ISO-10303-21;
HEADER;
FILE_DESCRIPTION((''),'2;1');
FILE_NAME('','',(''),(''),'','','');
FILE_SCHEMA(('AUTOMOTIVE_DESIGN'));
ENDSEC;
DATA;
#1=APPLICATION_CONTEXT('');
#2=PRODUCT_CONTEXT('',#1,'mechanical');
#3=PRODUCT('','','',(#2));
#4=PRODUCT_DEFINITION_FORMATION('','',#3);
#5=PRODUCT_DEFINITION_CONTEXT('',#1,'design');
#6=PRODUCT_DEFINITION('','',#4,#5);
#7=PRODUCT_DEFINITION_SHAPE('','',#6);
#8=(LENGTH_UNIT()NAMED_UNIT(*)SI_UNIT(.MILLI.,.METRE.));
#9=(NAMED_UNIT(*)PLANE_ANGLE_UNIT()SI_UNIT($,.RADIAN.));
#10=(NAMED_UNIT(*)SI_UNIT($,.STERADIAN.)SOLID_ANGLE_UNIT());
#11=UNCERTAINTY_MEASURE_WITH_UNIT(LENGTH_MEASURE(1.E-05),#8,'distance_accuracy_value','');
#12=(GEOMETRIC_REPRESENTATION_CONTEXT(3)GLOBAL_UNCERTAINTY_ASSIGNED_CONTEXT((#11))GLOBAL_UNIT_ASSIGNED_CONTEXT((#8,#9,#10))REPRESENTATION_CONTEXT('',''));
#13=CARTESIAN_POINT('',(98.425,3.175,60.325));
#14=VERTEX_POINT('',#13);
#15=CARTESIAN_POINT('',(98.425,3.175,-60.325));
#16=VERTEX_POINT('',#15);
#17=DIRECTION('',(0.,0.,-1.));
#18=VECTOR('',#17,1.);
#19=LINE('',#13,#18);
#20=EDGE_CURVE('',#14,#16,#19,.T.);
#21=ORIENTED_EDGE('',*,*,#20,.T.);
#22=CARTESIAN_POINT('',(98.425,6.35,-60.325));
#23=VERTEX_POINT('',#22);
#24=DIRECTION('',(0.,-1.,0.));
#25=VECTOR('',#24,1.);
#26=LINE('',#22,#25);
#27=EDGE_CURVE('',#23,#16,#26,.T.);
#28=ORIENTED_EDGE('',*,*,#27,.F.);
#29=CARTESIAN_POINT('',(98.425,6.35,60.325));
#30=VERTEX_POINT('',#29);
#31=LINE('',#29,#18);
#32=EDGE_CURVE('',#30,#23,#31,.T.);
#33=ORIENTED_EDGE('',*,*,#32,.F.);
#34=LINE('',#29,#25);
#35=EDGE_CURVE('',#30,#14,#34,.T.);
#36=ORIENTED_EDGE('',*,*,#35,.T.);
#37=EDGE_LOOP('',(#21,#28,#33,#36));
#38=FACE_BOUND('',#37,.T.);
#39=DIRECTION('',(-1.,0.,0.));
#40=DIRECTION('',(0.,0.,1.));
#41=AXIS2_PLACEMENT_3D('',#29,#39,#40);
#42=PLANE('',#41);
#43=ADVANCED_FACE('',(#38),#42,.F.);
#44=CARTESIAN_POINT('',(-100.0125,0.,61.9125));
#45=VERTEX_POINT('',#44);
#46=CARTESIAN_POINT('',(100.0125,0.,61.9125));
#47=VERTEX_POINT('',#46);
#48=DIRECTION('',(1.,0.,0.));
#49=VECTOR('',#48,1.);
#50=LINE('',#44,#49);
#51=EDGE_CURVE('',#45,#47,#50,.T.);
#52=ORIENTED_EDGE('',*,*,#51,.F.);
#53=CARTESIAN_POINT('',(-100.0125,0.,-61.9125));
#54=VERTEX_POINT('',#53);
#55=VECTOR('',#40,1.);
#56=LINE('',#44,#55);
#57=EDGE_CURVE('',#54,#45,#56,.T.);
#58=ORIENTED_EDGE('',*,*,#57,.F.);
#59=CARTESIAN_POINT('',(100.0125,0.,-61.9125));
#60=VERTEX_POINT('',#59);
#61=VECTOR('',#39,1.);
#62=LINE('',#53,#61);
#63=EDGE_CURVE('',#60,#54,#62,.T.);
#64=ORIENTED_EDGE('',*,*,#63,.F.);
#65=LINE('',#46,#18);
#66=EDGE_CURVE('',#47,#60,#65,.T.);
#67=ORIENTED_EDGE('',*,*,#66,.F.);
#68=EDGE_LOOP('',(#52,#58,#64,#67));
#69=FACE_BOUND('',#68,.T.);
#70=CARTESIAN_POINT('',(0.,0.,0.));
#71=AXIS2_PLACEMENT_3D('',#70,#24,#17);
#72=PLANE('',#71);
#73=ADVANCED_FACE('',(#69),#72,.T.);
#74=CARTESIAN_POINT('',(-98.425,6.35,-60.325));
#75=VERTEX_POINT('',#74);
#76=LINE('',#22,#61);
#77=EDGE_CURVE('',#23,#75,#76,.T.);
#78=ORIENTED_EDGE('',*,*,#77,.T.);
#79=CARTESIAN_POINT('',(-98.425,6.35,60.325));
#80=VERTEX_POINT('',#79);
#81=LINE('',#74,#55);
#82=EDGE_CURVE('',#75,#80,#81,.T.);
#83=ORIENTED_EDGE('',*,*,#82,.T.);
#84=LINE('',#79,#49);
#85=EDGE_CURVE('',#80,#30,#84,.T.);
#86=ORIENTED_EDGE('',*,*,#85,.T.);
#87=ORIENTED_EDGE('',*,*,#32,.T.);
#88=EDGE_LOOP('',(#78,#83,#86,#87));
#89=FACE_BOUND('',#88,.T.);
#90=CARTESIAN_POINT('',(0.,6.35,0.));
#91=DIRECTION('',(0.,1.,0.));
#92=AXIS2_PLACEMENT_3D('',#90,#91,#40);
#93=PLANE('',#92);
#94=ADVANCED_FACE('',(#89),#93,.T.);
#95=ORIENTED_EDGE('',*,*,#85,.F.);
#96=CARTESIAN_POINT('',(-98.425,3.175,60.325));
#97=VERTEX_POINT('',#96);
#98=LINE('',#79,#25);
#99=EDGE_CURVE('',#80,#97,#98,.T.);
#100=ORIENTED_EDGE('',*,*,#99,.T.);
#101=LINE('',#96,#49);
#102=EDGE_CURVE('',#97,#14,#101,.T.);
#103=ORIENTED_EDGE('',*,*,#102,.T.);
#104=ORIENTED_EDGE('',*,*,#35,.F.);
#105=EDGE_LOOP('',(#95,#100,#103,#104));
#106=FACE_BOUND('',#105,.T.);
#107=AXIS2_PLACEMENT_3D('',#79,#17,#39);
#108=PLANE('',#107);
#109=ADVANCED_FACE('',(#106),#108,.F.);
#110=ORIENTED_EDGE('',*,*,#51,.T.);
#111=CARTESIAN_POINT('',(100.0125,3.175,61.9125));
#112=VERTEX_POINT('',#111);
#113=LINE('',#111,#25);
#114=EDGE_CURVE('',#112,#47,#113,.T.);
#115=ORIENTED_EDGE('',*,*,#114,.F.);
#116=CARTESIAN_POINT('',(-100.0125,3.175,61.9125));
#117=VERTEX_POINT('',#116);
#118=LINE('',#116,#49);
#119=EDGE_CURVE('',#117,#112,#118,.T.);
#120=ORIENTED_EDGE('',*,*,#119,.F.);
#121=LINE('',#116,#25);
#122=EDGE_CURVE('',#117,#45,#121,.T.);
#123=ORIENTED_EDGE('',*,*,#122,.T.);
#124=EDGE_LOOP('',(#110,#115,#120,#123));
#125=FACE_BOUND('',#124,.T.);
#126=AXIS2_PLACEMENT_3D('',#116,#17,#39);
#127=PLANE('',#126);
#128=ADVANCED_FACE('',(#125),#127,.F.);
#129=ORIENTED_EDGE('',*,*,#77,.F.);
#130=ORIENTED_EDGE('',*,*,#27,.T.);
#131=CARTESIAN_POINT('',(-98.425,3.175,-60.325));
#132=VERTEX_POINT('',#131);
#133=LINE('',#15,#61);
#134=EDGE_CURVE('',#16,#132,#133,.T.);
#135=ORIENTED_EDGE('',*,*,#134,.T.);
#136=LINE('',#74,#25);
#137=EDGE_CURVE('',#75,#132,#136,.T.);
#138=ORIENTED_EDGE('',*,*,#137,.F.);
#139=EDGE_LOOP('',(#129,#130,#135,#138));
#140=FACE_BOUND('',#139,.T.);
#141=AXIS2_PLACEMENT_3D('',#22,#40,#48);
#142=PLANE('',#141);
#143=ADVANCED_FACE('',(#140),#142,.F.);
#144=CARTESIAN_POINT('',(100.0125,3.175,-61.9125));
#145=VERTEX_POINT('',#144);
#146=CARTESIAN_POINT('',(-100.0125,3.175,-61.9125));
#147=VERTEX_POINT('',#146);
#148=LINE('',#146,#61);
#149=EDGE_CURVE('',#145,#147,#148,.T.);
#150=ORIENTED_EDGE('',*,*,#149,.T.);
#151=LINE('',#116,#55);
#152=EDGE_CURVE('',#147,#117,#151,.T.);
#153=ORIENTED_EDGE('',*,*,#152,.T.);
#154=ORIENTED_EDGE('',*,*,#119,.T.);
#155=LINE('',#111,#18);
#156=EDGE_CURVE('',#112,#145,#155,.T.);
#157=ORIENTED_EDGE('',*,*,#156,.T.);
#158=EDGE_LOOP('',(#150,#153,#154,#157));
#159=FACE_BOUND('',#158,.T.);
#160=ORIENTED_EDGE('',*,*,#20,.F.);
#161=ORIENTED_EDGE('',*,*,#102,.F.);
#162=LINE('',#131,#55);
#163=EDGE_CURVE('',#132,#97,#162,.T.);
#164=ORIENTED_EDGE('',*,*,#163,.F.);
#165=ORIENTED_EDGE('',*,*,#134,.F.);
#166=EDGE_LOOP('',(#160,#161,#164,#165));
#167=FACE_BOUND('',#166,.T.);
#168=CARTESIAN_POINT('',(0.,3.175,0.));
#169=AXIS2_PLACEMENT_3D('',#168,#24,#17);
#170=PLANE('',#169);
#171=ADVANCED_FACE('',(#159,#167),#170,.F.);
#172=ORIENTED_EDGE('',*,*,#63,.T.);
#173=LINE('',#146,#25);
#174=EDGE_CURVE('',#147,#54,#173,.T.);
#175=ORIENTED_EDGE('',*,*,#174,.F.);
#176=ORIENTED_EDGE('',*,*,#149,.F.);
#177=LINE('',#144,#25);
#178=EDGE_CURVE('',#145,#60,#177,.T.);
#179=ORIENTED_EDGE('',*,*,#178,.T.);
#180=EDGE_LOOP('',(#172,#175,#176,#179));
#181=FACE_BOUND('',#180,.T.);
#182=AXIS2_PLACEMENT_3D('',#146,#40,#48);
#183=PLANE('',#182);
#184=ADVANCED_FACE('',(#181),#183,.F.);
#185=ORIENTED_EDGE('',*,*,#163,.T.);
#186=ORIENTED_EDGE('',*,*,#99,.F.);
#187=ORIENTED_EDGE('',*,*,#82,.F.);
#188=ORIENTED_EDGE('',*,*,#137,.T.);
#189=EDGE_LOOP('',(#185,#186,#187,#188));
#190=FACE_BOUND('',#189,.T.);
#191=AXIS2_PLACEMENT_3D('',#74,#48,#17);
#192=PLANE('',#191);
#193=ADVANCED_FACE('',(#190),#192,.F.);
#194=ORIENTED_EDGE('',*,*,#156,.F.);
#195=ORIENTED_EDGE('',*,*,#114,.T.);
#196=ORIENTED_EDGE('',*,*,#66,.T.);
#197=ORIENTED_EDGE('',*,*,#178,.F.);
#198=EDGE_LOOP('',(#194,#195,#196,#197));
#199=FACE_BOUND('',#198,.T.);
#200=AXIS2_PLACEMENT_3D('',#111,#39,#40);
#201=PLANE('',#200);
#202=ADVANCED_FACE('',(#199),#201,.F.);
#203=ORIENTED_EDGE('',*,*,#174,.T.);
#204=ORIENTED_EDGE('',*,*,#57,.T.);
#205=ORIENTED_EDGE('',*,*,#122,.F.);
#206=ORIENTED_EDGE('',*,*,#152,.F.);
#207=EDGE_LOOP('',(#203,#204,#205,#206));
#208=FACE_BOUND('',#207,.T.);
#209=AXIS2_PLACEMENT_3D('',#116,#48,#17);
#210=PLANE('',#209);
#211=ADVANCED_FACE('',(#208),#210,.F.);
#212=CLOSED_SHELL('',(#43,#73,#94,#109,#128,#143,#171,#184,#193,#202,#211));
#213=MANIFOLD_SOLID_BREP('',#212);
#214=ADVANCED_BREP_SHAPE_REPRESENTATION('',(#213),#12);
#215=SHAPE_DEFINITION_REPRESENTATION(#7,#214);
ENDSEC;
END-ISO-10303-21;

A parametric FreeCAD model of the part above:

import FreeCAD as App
import Part
import Sketcher

V = App.Vector
Q = App.Units.Quantity

doc = App.newDocument("Part")
params = doc.addObject("Spreadsheet::Sheet", "Params")
for row, (alias, value) in enumerate([
    ("sketch1_width", "7.875 in"),
    ("sketch1_height", "4.875 in"),
    ("pad1_length", "0.125 in"),
    ("sketch2_width", "7.75 in"),
    ("sketch2_height", "4.75 in"),
    ("pad2_length", "0.125 in"),
], start=1):
    params.set(f"A{row}", alias)
    params.set(f"B{row}", "=" + value)
    params.setAlias(f"B{row}", alias)

body = doc.addObject("PartDesign::Body", "Body")

sketch1 = body.newObject("Sketcher::SketchObject", "Sketch")
sketch1.AttachmentSupport = (doc.getObject("XZ_Plane"), [""])
sketch1.MapMode = "FlatFace"
sketch1.addGeometry(Part.LineSegment(V(-100, -62, 0), V(-100, 62, 0)), False)
sketch1.addGeometry(Part.LineSegment(V(-100, 62, 0), V(100, 62, 0)), False)
sketch1.addGeometry(Part.LineSegment(V(100, 62, 0), V(100, -62, 0)), False)
sketch1.addGeometry(Part.LineSegment(V(100, -62, 0), V(-100, -62, 0)), False)
sketch1.addConstraint(Sketcher.Constraint("Coincident", 0, 2, 1, 1))
sketch1.addConstraint(Sketcher.Constraint("Coincident", 1, 2, 2, 1))
sketch1.addConstraint(Sketcher.Constraint("Coincident", 2, 2, 3, 1))
sketch1.addConstraint(Sketcher.Constraint("Coincident", 3, 2, 0, 1))
sketch1.addConstraint(Sketcher.Constraint("Vertical", 0))
sketch1.addConstraint(Sketcher.Constraint("Horizontal", 1))
sketch1.addConstraint(Sketcher.Constraint("Vertical", 2))
sketch1.addConstraint(Sketcher.Constraint("Horizontal", 3))
sketch1.addConstraint(Sketcher.Constraint("Symmetric", 0, 2, 2, 2, -1, 1))
sketch1.addConstraint(Sketcher.Constraint("DistanceX", 1, 1, 1, 2, Q("7.875 in")))
sketch1.addConstraint(Sketcher.Constraint("DistanceY", 0, 1, 0, 2, Q("4.875 in")))
sketch1.setExpression("Constraints[9]", "Params.sketch1_width")
sketch1.setExpression("Constraints[10]", "Params.sketch1_height")
pad1 = body.newObject("PartDesign::Pad", "Pad")
pad1.Profile = sketch1
pad1.setExpression("Length", "Params.pad1_length")
pad1.Reversed = True

sketch2 = body.newObject("Sketcher::SketchObject", "Sketch001")
sketch2.AttachmentSupport = (doc.getObject("XZ_Plane"), [""])
sketch2.MapMode = "FlatFace"
sketch2.AttachmentOffset = App.Placement(V(0, 0, -0.125 * 25.4), App.Rotation())
sketch2.addGeometry(Part.LineSegment(V(-98, -60, 0), V(-98, 60, 0)), False)
sketch2.addGeometry(Part.LineSegment(V(-98, 60, 0), V(98, 60, 0)), False)
sketch2.addGeometry(Part.LineSegment(V(98, 60, 0), V(98, -60, 0)), False)
sketch2.addGeometry(Part.LineSegment(V(98, -60, 0), V(-98, -60, 0)), False)
sketch2.addConstraint(Sketcher.Constraint("Coincident", 0, 2, 1, 1))
sketch2.addConstraint(Sketcher.Constraint("Coincident", 1, 2, 2, 1))
sketch2.addConstraint(Sketcher.Constraint("Coincident", 2, 2, 3, 1))
sketch2.addConstraint(Sketcher.Constraint("Coincident", 3, 2, 0, 1))
sketch2.addConstraint(Sketcher.Constraint("Vertical", 0))
sketch2.addConstraint(Sketcher.Constraint("Horizontal", 1))
sketch2.addConstraint(Sketcher.Constraint("Vertical", 2))
sketch2.addConstraint(Sketcher.Constraint("Horizontal", 3))
sketch2.addConstraint(Sketcher.Constraint("Symmetric", 0, 2, 2, 2, -1, 1))
sketch2.addConstraint(Sketcher.Constraint("DistanceX", 1, 1, 1, 2, Q("7.75 in")))
sketch2.addConstraint(Sketcher.Constraint("DistanceY", 0, 1, 0, 2, Q("4.75 in")))
sketch2.setExpression("Constraints[9]", "Params.sketch2_width")
sketch2.setExpression("Constraints[10]", "Params.sketch2_height")
pad2 = body.newObject("PartDesign::Pad", "Pad001")
pad2.Profile = sketch2
pad2.setExpression("Length", "Params.pad2_length")
pad2.Reversed = True

doc.recompute()
